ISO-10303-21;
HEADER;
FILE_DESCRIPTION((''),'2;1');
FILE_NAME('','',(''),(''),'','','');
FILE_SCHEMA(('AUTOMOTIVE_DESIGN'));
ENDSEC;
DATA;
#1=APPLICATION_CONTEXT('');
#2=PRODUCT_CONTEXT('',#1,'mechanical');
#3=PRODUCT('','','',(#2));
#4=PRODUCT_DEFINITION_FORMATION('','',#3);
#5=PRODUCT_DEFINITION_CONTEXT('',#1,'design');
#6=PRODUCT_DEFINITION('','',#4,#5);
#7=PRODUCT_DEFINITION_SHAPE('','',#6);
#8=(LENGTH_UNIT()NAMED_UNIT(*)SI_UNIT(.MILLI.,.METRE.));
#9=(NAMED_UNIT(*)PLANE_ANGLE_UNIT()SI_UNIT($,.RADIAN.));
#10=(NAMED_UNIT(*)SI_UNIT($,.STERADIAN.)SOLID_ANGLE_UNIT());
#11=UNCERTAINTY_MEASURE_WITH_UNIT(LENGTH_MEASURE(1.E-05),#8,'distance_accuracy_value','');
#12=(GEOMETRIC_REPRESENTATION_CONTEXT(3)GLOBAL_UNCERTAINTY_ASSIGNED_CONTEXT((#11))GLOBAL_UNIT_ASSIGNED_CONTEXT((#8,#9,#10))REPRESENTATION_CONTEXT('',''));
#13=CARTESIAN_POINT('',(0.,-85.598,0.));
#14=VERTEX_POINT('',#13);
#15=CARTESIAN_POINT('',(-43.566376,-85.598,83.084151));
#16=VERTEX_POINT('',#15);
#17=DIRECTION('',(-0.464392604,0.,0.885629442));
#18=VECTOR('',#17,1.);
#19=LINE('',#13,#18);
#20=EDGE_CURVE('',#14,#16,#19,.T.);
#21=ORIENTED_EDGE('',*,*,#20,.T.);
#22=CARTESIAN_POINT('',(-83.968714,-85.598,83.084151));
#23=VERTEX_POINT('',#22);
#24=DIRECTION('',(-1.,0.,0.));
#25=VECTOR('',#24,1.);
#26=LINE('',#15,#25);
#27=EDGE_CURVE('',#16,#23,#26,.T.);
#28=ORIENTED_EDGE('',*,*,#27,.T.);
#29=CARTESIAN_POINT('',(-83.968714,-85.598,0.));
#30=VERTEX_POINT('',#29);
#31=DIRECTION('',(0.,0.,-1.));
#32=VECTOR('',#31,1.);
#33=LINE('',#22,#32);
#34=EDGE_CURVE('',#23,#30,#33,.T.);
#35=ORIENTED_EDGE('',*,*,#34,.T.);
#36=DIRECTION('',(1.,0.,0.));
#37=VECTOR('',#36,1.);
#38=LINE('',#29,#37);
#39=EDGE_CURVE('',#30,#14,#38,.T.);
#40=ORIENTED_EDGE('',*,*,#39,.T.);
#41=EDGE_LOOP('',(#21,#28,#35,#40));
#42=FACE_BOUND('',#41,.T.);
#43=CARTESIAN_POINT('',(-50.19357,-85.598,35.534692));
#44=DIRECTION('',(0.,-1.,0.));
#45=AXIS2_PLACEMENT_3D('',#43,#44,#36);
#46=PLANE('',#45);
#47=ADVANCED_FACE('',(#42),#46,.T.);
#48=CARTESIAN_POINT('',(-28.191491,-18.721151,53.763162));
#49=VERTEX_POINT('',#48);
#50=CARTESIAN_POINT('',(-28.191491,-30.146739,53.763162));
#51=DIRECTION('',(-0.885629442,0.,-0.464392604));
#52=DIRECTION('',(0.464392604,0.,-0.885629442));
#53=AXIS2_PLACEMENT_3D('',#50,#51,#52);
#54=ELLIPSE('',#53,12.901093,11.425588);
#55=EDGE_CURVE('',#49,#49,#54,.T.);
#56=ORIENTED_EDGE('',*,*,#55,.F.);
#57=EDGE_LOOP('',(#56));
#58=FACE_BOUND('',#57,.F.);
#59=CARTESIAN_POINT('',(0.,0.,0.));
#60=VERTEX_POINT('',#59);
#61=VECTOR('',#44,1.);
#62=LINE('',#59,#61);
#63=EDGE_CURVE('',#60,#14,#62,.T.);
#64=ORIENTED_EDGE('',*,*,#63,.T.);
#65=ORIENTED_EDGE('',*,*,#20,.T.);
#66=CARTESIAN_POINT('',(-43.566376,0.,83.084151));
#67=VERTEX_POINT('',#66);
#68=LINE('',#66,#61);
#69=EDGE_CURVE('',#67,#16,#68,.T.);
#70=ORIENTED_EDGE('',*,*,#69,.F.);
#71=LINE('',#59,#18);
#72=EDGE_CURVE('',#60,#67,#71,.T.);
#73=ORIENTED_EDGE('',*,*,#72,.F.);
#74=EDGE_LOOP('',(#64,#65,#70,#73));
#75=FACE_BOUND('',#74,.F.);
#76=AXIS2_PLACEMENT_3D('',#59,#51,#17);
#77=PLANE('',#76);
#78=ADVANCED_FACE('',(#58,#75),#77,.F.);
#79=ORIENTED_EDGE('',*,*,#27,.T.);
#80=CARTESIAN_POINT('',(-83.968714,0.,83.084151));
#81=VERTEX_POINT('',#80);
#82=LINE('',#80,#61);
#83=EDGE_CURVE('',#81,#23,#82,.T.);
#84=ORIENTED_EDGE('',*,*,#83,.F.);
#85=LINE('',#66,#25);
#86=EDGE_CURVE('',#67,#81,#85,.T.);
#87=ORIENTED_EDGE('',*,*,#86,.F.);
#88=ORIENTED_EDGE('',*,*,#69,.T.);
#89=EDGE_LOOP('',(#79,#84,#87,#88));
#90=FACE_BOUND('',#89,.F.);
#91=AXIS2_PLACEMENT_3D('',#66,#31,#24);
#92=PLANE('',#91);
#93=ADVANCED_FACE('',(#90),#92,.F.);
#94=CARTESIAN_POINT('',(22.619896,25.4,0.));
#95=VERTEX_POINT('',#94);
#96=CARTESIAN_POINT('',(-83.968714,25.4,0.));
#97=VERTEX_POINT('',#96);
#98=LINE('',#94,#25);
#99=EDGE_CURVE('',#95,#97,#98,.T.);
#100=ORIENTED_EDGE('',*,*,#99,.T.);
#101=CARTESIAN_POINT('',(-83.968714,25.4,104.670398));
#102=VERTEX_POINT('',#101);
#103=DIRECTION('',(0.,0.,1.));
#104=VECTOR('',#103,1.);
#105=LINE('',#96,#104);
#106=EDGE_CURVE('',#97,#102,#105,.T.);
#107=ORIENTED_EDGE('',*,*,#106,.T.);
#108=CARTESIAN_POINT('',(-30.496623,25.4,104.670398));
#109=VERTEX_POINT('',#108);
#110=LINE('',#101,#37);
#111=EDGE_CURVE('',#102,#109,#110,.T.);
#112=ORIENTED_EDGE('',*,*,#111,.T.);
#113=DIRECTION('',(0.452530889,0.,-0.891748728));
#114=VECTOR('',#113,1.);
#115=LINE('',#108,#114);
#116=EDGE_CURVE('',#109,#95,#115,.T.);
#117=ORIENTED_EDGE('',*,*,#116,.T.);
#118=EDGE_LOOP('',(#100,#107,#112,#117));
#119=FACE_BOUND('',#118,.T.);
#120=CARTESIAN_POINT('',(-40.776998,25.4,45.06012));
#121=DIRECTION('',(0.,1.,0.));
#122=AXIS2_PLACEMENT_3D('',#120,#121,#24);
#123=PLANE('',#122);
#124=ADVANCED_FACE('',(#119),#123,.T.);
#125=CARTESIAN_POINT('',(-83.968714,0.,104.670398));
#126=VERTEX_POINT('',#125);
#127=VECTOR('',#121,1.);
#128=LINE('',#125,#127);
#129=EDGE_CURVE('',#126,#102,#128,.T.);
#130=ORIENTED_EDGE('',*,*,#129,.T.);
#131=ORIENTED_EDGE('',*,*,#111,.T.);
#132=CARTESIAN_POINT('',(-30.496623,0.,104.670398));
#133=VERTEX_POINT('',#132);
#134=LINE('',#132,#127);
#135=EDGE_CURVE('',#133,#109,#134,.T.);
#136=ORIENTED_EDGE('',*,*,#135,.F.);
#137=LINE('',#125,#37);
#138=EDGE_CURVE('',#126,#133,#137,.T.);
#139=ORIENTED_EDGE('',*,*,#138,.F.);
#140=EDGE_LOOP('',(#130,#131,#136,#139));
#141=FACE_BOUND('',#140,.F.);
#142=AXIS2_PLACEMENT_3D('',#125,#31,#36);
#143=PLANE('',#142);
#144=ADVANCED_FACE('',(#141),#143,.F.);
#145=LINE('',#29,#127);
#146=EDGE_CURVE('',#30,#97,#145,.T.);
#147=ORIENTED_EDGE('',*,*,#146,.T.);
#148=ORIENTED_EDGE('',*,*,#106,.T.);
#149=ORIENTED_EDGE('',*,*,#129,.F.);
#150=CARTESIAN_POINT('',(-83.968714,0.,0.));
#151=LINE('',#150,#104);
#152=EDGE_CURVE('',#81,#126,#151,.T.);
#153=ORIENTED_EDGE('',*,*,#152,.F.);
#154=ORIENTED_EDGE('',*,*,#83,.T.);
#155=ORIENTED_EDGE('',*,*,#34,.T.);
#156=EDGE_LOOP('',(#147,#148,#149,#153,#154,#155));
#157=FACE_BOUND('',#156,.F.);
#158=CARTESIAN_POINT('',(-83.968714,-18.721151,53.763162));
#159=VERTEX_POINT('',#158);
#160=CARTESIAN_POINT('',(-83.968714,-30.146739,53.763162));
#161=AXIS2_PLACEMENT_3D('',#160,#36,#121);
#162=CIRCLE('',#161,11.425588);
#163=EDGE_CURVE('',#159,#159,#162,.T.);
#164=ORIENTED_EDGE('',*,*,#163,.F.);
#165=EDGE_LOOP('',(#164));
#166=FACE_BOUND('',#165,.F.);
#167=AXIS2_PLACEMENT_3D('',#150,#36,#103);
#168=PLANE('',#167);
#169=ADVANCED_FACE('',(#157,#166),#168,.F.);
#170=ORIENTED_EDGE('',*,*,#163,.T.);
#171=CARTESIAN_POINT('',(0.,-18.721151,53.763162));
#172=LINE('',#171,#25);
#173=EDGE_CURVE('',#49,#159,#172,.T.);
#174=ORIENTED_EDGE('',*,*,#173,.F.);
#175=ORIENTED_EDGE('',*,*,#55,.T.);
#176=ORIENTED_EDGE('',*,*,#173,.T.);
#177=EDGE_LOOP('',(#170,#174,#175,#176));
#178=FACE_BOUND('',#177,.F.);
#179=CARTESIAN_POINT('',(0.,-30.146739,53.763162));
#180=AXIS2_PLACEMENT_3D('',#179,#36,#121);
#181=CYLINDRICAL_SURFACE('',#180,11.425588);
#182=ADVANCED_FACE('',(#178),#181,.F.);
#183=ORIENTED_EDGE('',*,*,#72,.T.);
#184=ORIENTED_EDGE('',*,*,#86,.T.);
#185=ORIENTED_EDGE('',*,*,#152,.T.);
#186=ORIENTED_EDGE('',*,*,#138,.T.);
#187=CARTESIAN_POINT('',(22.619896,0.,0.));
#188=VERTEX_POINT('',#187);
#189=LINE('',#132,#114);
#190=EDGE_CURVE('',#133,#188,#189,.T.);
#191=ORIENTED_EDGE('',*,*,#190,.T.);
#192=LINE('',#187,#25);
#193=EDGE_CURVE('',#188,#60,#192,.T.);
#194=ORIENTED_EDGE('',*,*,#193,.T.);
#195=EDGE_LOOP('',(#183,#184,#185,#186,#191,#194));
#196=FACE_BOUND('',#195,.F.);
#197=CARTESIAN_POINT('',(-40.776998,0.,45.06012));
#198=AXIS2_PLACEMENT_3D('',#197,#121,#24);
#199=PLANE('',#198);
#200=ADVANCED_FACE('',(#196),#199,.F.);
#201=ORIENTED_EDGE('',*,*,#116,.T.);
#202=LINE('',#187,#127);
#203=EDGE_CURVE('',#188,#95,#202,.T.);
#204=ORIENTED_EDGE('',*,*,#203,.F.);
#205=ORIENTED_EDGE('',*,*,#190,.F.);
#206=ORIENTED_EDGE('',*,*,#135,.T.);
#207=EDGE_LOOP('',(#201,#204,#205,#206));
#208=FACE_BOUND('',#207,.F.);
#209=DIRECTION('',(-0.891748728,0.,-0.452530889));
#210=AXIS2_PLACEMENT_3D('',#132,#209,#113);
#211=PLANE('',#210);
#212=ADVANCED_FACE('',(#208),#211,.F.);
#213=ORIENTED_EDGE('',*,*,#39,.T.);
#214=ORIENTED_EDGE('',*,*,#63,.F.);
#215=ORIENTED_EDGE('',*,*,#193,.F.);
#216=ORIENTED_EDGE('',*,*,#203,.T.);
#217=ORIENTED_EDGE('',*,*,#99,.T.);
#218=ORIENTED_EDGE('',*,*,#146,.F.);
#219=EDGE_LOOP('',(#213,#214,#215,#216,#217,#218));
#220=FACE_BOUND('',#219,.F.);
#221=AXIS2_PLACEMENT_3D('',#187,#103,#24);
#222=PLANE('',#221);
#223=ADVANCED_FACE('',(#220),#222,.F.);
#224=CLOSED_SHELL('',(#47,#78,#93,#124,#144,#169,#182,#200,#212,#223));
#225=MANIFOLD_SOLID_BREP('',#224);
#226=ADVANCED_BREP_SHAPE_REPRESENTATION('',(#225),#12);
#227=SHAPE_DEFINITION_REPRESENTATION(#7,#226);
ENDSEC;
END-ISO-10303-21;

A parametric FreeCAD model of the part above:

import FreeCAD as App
import Part
import Sketcher

V = App.Vector
Q = App.Units.Quantity


def add_polygon(sketch, points):
    """Adds a closed chain of lines whose ends are joined by coincident constraints."""
    first, n = sketch.GeometryCount, len(points)
    for a, b in zip(points, points[1:] + points[:1]):
        sketch.addGeometry(Part.LineSegment(App.Vector(*a, 0), App.Vector(*b, 0)), False)
    for i in range(n):
        sketch.addConstraint(Sketcher.Constraint("Coincident", first + i, 2, first + (i + 1) % n, 1))

doc = App.newDocument("Part")
body = doc.addObject("PartDesign::Body", "Body")

sketch1 = doc.addObject("Sketcher::SketchObject", "Sketch")
body.addObject(sketch1)
sketch1.AttachmentSupport = (doc.XZ_Plane, [""])
sketch1.MapMode = "FlatFace"
add_polygon(sketch1, [(-84, 0), (0, 0), (-44, 83), (-84, 83)])
sketch1.addConstraint([
    Sketcher.Constraint("Horizontal", 0),
    Sketcher.Constraint("Horizontal", 2),
    Sketcher.Constraint("Vertical", 3),
    Sketcher.Constraint("Coincident", 0, 2, -1, 1),
    Sketcher.Constraint("DistanceX", 2, 2, 2, 1, Q("40.402338 mm")),
    Sketcher.Constraint("DistanceY", 3, 2, 3, 1, Q("83.084151 mm")),
    Sketcher.Constraint("DistanceX", 0, 1, 0, 2, Q("83.968714 mm")),
])
pad1 = doc.addObject("PartDesign::Pad", "Pad")
body.addObject(pad1)
pad1.Profile = sketch1
pad1.Length = Q("3.37 in")

sketch2 = doc.addObject("Sketcher::SketchObject", "Sketch001")
body.addObject(sketch2)
sketch2.AttachmentSupport = (doc.XZ_Plane, [""])
sketch2.MapMode = "FlatFace"
add_polygon(sketch2, [(23, 0), (-84, 0), (-84, 105), (-30, 105)])
sketch2.addConstraint([
    Sketcher.Constraint("Horizontal", 0),
    Sketcher.Constraint("Vertical", 1),
    Sketcher.Constraint("Horizontal", 2),
    Sketcher.Constraint("PointOnObject", 0, 2, -1),
    Sketcher.Constraint("DistanceY", 1, 1, 1, 2, Q("104.670398 mm")),
    Sketcher.Constraint("DistanceX", 0, 2, 0, 1, Q("106.58861 mm")),
    Sketcher.Constraint("DistanceX", 2, 1, 2, 2, Q("53.472091 mm")),
    Sketcher.Constraint("DistanceX", 0, 2, -1, 1, Q("83.968714 mm")),
])
pad2 = doc.addObject("PartDesign::Pad", "Pad001")
body.addObject(pad2)
pad2.Profile = sketch2
pad2.Length = Q("1 in")
pad2.Reversed = True

sketch3 = doc.addObject("Sketcher::SketchObject", "Sketch002")
body.addObject(sketch3)
sketch3.AttachmentSupport = (doc.YZ_Plane, [""])
sketch3.MapMode = "FlatFace"
sketch3.addGeometry(Part.Circle(V(-30, 54, 0), V(0, 0, 1), 11), False)
sketch3.addConstraint([
    Sketcher.Constraint("Diameter", 0, Q("22.851176 mm")),
    Sketcher.Constraint("DistanceX", 0, 3, -1, 1, Q("30.146739 mm")),
    Sketcher.Constraint("DistanceY", -1, 1, 0, 3, Q("53.763162 mm")),
])
pocket1 = doc.addObject("PartDesign::Pocket", "Pocket")
body.addObject(pocket1)
pocket1.Profile = sketch3
pocket1.Type = "ThroughAll"

doc.recompute()
